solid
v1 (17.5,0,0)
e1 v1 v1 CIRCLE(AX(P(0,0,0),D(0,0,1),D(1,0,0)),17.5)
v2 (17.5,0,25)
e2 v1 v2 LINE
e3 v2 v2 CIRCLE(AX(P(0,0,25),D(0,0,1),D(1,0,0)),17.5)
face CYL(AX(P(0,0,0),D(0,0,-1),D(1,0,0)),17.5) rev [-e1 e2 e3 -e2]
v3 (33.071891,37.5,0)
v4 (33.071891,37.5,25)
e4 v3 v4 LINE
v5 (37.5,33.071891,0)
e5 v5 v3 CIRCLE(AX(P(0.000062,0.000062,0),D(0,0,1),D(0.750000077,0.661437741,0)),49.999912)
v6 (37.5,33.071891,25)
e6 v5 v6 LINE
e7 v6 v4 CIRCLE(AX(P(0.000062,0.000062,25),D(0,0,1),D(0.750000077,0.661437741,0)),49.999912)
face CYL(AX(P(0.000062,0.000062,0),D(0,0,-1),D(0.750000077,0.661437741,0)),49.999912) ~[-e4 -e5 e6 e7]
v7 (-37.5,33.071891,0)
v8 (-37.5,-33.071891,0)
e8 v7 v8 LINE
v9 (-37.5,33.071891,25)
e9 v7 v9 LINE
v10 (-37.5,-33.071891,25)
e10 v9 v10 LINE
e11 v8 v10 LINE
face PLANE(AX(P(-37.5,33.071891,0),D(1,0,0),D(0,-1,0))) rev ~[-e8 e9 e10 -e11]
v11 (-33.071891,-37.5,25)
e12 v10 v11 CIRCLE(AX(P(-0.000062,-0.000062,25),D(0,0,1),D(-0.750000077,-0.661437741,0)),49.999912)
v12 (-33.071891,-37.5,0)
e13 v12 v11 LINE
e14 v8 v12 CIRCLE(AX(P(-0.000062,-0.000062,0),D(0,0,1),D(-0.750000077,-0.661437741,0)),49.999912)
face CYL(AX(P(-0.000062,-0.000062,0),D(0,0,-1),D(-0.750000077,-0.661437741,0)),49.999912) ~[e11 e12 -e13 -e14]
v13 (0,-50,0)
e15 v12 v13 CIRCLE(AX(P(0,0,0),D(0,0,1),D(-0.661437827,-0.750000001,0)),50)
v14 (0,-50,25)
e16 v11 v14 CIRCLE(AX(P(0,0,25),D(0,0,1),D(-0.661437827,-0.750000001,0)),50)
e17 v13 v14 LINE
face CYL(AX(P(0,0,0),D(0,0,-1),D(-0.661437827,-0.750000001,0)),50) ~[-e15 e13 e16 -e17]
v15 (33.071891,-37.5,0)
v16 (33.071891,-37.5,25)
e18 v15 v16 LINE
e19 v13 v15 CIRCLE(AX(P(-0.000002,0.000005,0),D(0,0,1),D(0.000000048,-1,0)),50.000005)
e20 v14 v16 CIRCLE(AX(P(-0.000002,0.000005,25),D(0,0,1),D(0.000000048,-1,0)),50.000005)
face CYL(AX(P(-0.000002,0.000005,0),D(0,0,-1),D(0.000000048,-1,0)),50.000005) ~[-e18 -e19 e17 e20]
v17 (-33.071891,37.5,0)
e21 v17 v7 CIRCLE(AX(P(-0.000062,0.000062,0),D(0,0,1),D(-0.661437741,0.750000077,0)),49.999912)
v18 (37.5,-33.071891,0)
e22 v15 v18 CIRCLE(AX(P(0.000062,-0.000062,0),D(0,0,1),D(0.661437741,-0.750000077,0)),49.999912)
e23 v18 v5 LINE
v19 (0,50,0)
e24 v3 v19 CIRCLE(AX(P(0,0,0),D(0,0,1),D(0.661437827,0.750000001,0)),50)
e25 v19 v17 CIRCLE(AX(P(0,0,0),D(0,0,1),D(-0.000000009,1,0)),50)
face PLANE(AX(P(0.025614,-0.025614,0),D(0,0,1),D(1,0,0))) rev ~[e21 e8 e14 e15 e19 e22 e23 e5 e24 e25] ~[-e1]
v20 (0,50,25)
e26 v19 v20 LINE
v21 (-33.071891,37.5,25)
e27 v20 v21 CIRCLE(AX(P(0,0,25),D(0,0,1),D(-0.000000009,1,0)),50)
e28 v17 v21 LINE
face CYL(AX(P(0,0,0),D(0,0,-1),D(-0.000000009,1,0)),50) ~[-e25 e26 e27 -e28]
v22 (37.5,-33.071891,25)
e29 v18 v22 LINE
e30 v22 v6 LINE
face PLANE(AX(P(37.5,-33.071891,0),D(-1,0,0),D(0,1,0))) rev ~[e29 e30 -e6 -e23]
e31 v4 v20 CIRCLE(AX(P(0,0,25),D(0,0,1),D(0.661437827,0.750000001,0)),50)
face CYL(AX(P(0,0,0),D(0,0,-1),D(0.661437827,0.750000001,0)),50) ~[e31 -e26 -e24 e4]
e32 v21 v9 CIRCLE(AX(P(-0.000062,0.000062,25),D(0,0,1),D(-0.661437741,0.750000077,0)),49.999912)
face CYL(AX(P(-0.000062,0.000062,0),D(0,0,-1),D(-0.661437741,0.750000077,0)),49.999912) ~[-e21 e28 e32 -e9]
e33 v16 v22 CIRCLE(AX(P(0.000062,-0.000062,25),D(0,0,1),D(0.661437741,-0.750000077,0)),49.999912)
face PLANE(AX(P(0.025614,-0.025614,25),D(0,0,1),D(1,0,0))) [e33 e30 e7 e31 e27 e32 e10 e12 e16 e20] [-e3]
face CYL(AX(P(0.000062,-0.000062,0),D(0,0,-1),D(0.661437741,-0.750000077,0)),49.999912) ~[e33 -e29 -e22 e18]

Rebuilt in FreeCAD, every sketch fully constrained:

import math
import FreeCAD as App
import Part
import Sketcher
from FreeCAD import Vector

doc = App.newDocument("Part")
params = doc.addObject("Spreadsheet::Sheet", "Params")
for row, (alias, value) in enumerate([
    ("sketch1_diameter", "35 mm"),
    ("sketch1_radius", "50 mm"),
    ("pad1_length", "25 mm"),
], start=1):
    params.set(f"A{row}", alias)
    params.set(f"B{row}", "=" + value)
    params.setAlias(f"B{row}", alias)

body = doc.addObject("PartDesign::Body", "Body")

# Sketch on XY plane
sketch1 = body.newObject("Sketcher::SketchObject", "Sketch")
sketch1.AttachmentSupport = (doc.getObject("XY_Plane"), [""])
sketch1.MapMode = "FlatFace"
sketch1.addGeometry([
    Part.ArcOfCircle(Part.Circle(Vector(0, 0, 0), Vector(0, 0, 1), 50), math.radians(-131), math.radians(-90)),  # 0
    Part.ArcOfCircle(Part.Circle(Vector(0, 0, 0), Vector(0, 0, 1), 50), math.radians(-90), math.radians(-49)),  # 1
    Part.ArcOfCircle(Part.Circle(Vector(0, 0, 0), Vector(0, 0, 1), 50), math.radians(-48.59), math.radians(-41.41)),  # 2
    Part.LineSegment(Vector(38, -33, 0), Vector(38, 33, 0)),  # 3
    Part.ArcOfCircle(Part.Circle(Vector(0, 0, 0), Vector(0, 0, 1), 50), math.radians(41.41), math.radians(48.59)),  # 4
    Part.ArcOfCircle(Part.Circle(Vector(0, 0, 0), Vector(0, 0, 1), 50), math.radians(49), math.radians(90)),  # 5
    Part.ArcOfCircle(Part.Circle(Vector(0, 0, 0), Vector(0, 0, 1), 50), math.radians(90), math.radians(131)),  # 6
    Part.ArcOfCircle(Part.Circle(Vector(0, 0, 0), Vector(0, 0, 1), 50), math.radians(131.41), math.radians(138.59)),  # 7
    Part.LineSegment(Vector(-38, 33, 0), Vector(-38, -33, 0)),  # 8
    Part.ArcOfCircle(Part.Circle(Vector(0, 0, 0), Vector(0, 0, 1), 50), math.radians(-138.59), math.radians(-131.41)),  # 9
    Part.Circle(Vector(0, 0, 0), Vector(0, 0, 1), 18),  # 10
], False)
sketch1.addConstraint([
    Sketcher.Constraint("Tangent", 0, 2, 1, 1),
    Sketcher.Constraint("Tangent", 1, 2, 2, 1),
    Sketcher.Constraint("Coincident", 2, 2, 3, 1),
    Sketcher.Constraint("Coincident", 3, 2, 4, 1),
    Sketcher.Constraint("Tangent", 4, 2, 5, 1),
    Sketcher.Constraint("Tangent", 5, 2, 6, 1),
    Sketcher.Constraint("Tangent", 6, 2, 7, 1),
    Sketcher.Constraint("Coincident", 7, 2, 8, 1),
    Sketcher.Constraint("Coincident", 8, 2, 9, 1),
    Sketcher.Constraint("Tangent", 9, 2, 0, 1),
    Sketcher.Constraint("Vertical", 3),
    Sketcher.Constraint("Vertical", 8),
    Sketcher.Constraint("Coincident", 0, 3, -1, 1),
    Sketcher.Constraint("Coincident", 5, 3, -1, 1),
    Sketcher.Constraint("Coincident", 10, 3, -1, 1),
    Sketcher.Constraint("Equal", 2, 4),
    Sketcher.Constraint("Equal", 0, 5),
    Sketcher.Constraint("Equal", 5, 6),
    Sketcher.Constraint("Equal", 4, 7),
    Sketcher.Constraint("Equal", 7, 9),
    Sketcher.Constraint("Symmetric", 1, 2, 6, 2, -1, 1),
    Sketcher.Constraint("PointOnObject", 0, 2, -2),
    Sketcher.Constraint("PointOnObject", 5, 2, -2),
    Sketcher.Constraint("Horizontal", 4, 2, 6, 2),
    Sketcher.Constraint("Horizontal", 3, 2, 7, 2),
    Sketcher.Constraint("Horizontal", 1, 2, 9, 2),
    Sketcher.Constraint("Diameter", 10, 35.0),
    Sketcher.Constraint("Radius", 0, 50.0),
    Sketcher.Constraint("DistanceY", 1, 2, -1, 1, 37.5),
    Sketcher.Constraint("DistanceX", -1, 1, 2, 2, 37.5),
    Sketcher.Constraint("Radius", 2, 49.999912),
])
sketch1.setExpression("Constraints[26]", "Params.sketch1_diameter")
sketch1.setExpression("Constraints[27]", "Params.sketch1_radius")
pad1 = body.newObject("PartDesign::Pad", "Pad")
pad1.Profile = sketch1
pad1.setExpression("Length", "Params.pad1_length")

doc.recompute()
